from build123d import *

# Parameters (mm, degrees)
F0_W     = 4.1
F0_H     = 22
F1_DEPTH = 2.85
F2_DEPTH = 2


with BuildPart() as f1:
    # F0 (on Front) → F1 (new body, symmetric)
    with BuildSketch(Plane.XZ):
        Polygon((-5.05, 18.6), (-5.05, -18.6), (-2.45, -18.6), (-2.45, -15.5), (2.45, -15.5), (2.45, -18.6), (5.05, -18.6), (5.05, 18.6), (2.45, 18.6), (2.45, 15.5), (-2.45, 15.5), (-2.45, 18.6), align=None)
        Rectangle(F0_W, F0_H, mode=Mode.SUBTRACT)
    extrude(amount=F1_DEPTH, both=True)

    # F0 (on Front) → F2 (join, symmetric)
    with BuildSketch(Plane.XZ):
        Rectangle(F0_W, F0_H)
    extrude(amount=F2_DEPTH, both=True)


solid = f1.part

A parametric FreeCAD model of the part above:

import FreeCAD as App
import Part
import Sketcher
from FreeCAD import Vector
Q = App.Units.Quantity

doc = App.newDocument("Part")
body = doc.addObject("PartDesign::Body", "Body")

# Sketch on XZ plane
sketch1 = body.newObject("Sketcher::SketchObject", "Sketch")
sketch1.AttachmentSupport = (doc.getObject("XZ_Plane"), [""])
sketch1.MapMode = "FlatFace"
sketch1.addGeometry(Part.LineSegment(Vector(-5.05, 18.6, 0), Vector(-5.05, -18.6, 0)), False)
sketch1.addGeometry(Part.LineSegment(Vector(-5.05, -18.6, 0), Vector(-2.45, -18.6, 0)), False)
sketch1.addGeometry(Part.LineSegment(Vector(-2.45, -18.6, 0), Vector(-2.45, -15.5, 0)), False)
sketch1.addGeometry(Part.LineSegment(Vector(-2.45, -15.5, 0), Vector(2.45, -15.5, 0)), False)
sketch1.addGeometry(Part.LineSegment(Vector(2.45, -15.5, 0), Vector(2.45, -18.6, 0)), False)
sketch1.addGeometry(Part.LineSegment(Vector(2.45, -18.6, 0), Vector(5.05, -18.6, 0)), False)
sketch1.addGeometry(Part.LineSegment(Vector(5.05, -18.6, 0), Vector(5.05, 18.6, 0)), False)
sketch1.addGeometry(Part.LineSegment(Vector(5.05, 18.6, 0), Vector(2.45, 18.6, 0)), False)
sketch1.addGeometry(Part.LineSegment(Vector(2.45, 18.6, 0), Vector(2.45, 15.5, 0)), False)
sketch1.addGeometry(Part.LineSegment(Vector(2.45, 15.5, 0), Vector(-2.45, 15.5, 0)), False)
sketch1.addGeometry(Part.LineSegment(Vector(-2.45, 15.5, 0), Vector(-2.45, 18.6, 0)), False)
sketch1.addGeometry(Part.LineSegment(Vector(-2.45, 18.6, 0), Vector(-5.05, 18.6, 0)), False)
sketch1.addGeometry(Part.LineSegment(Vector(2.05, -11, 0), Vector(-2.05, -11, 0)), False)
sketch1.addGeometry(Part.LineSegment(Vector(-2.05, -11, 0), Vector(-2.05, 11, 0)), False)
sketch1.addGeometry(Part.LineSegment(Vector(-2.05, 11, 0), Vector(2.05, 11, 0)), False)
sketch1.addGeometry(Part.LineSegment(Vector(2.05, 11, 0), Vector(2.05, -11, 0)), False)
sketch1.addConstraint(Sketcher.Constraint("Coincident", 0, 2, 1, 1))
sketch1.addConstraint(Sketcher.Constraint("Coincident", 1, 2, 2, 1))
sketch1.addConstraint(Sketcher.Constraint("Coincident", 2, 2, 3, 1))
sketch1.addConstraint(Sketcher.Constraint("Coincident", 3, 2, 4, 1))
sketch1.addConstraint(Sketcher.Constraint("Coincident", 4, 2, 5, 1))
sketch1.addConstraint(Sketcher.Constraint("Coincident", 5, 2, 6, 1))
sketch1.addConstraint(Sketcher.Constraint("Coincident", 6, 2, 7, 1))
sketch1.addConstraint(Sketcher.Constraint("Coincident", 7, 2, 8, 1))
sketch1.addConstraint(Sketcher.Constraint("Coincident", 8, 2, 9, 1))
sketch1.addConstraint(Sketcher.Constraint("Coincident", 9, 2, 10, 1))
sketch1.addConstraint(Sketcher.Constraint("Coincident", 10, 2, 11, 1))
sketch1.addConstraint(Sketcher.Constraint("Coincident", 11, 2, 0, 1))
sketch1.addConstraint(Sketcher.Constraint("Coincident", 12, 2, 13, 1))
sketch1.addConstraint(Sketcher.Constraint("Coincident", 13, 2, 14, 1))
sketch1.addConstraint(Sketcher.Constraint("Coincident", 14, 2, 15, 1))
sketch1.addConstraint(Sketcher.Constraint("Coincident", 15, 2, 12, 1))
sketch1.addConstraint(Sketcher.Constraint("Vertical", 0))
sketch1.addConstraint(Sketcher.Constraint("Horizontal", 1))
sketch1.addConstraint(Sketcher.Constraint("Vertical", 2))
sketch1.addConstraint(Sketcher.Constraint("Horizontal", 3))
sketch1.addConstraint(Sketcher.Constraint("Vertical", 4))
sketch1.addConstraint(Sketcher.Constraint("Horizontal", 5))
sketch1.addConstraint(Sketcher.Constraint("Vertical", 6))
sketch1.addConstraint(Sketcher.Constraint("Horizontal", 7))
sketch1.addConstraint(Sketcher.Constraint("Vertical", 8))
sketch1.addConstraint(Sketcher.Constraint("Horizontal", 9))
sketch1.addConstraint(Sketcher.Constraint("Vertical", 10))
sketch1.addConstraint(Sketcher.Constraint("Horizontal", 11))
sketch1.addConstraint(Sketcher.Constraint("Horizontal", 12))
sketch1.addConstraint(Sketcher.Constraint("Vertical", 13))
sketch1.addConstraint(Sketcher.Constraint("Horizontal", 14))
sketch1.addConstraint(Sketcher.Constraint("Vertical", 15))
sketch1.addConstraint(Sketcher.Constraint("Symmetric", 0, 2, 6, 2, -1, 1))
sketch1.addConstraint(Sketcher.Constraint("Symmetric", 2, 2, 8, 2, -1, 1))
sketch1.addConstraint(Sketcher.Constraint("Symmetric", 4, 2, 10, 2, -1, 1))
sketch1.addConstraint(Sketcher.Constraint("Symmetric", 12, 2, 14, 2, -1, 1))
sketch1.addConstraint(Sketcher.Constraint("Symmetric", 1, 2, 4, 2, -2))
sketch1.addConstraint(Sketcher.Constraint("DistanceY", 13, 1, 13, 2, Q("22 mm")))
sketch1.addConstraint(Sketcher.Constraint("DistanceX", 1, 1, 1, 2, Q("2.6 mm")))
sketch1.addConstraint(Sketcher.Constraint("DistanceX", 3, 1, 3, 2, Q("4.9 mm")))
sketch1.addConstraint(Sketcher.Constraint("DistanceX", 12, 2, 12, 1, Q("4.1 mm")))
sketch1.addConstraint(Sketcher.Constraint("DistanceY", 0, 2, 0, 1, Q("37.2 mm")))
sketch1.addConstraint(Sketcher.Constraint("DistanceY", 2, 1, 2, 2, Q("3.1 mm")))
pad1 = body.newObject("PartDesign::Pad", "Pad")
pad1.Profile = sketch1
pad1.Length = 5.7
pad1.Midplane = True

# Sketch on XZ plane
sketch2 = body.newObject("Sketcher::SketchObject", "Sketch001")
sketch2.AttachmentSupport = (doc.getObject("XZ_Plane"), [""])
sketch2.MapMode = "FlatFace"
sketch2.addGeometry(Part.LineSegment(Vector(-2.05, 11, 0), Vector(-2.05, -11, 0)), False)
sketch2.addGeometry(Part.LineSegment(Vector(-2.05, -11, 0), Vector(2.05, -11, 0)), False)
sketch2.addGeometry(Part.LineSegment(Vector(2.05, -11, 0), Vector(2.05, 11, 0)), False)
sketch2.addGeometry(Part.LineSegment(Vector(2.05, 11, 0), Vector(-2.05, 11, 0)), False)
sketch2.addConstraint(Sketcher.Constraint("Coincident", 0, 2, 1, 1))
sketch2.addConstraint(Sketcher.Constraint("Coincident", 1, 2, 2, 1))
sketch2.addConstraint(Sketcher.Constraint("Coincident", 2, 2, 3, 1))
sketch2.addConstraint(Sketcher.Constraint("Coincident", 3, 2, 0, 1))
sketch2.addConstraint(Sketcher.Constraint("Vertical", 0))
sketch2.addConstraint(Sketcher.Constraint("Horizontal", 1))
sketch2.addConstraint(Sketcher.Constraint("Vertical", 2))
sketch2.addConstraint(Sketcher.Constraint("Horizontal", 3))
sketch2.addConstraint(Sketcher.Constraint("Symmetric", 0, 2, 2, 2, -1, 1))
sketch2.addConstraint(Sketcher.Constraint("DistanceY", 0, 2, 0, 1, Q("22 mm")))
sketch2.addConstraint(Sketcher.Constraint("DistanceX", 1, 1, 1, 2, Q("4.1 mm")))
pad2 = body.newObject("PartDesign::Pad", "Pad001")
pad2.Profile = sketch2
pad2.Length = 4
pad2.Midplane = True

doc.recompute()
